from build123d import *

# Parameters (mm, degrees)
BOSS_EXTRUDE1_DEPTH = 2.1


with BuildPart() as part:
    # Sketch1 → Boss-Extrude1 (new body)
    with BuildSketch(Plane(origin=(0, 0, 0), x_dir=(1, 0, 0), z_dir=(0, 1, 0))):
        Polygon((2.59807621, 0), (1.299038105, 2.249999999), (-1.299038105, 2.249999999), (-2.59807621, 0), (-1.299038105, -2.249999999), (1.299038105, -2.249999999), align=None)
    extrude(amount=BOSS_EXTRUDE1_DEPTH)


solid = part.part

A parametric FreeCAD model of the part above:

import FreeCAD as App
import Part
import Sketcher
Q = App.Units.Quantity

doc = App.newDocument("Part")
params = doc.addObject("Spreadsheet::Sheet", "Params")
for row, (alias, value) in enumerate([
    ("pad1_length", "2.1 mm"),
], start=1):
    params.set(f"A{row}", alias)
    params.set(f"B{row}", "=" + value)
    params.setAlias(f"B{row}", alias)

body = doc.addObject("PartDesign::Body", "Body")

# Sketch on XZ plane
sketch1 = body.newObject("Sketcher::SketchObject", "Sketch")
sketch1.AttachmentSupport = (doc.getObject("XZ_Plane"), [""])
sketch1.MapMode = "FlatFace"
sketch1.addGeometry([
    Part.LineSegment(App.Vector(2.6, 0, 0), App.Vector(1.3, -2.2, 0)),  # 0
    Part.LineSegment(App.Vector(1.3, -2.2, 0), App.Vector(-1.3, -2.2, 0)),  # 1
    Part.LineSegment(App.Vector(-1.3, -2.2, 0), App.Vector(-2.6, 0, 0)),  # 2
    Part.LineSegment(App.Vector(-2.6, 0, 0), App.Vector(-1.3, 2.2, 0)),  # 3
    Part.LineSegment(App.Vector(-1.3, 2.2, 0), App.Vector(1.3, 2.2, 0)),  # 4
    Part.LineSegment(App.Vector(1.3, 2.2, 0), App.Vector(2.6, 0, 0)),  # 5
], False)
sketch1.addConstraint([
    Sketcher.Constraint("Coincident", 0, 2, 1, 1),
    Sketcher.Constraint("Coincident", 1, 2, 2, 1),
    Sketcher.Constraint("Coincident", 2, 2, 3, 1),
    Sketcher.Constraint("Coincident", 3, 2, 4, 1),
    Sketcher.Constraint("Coincident", 4, 2, 5, 1),
    Sketcher.Constraint("Coincident", 5, 2, 0, 1),
    Sketcher.Constraint("Horizontal", 1),
    Sketcher.Constraint("Horizontal", 4),
    Sketcher.Constraint("Symmetric", 0, 2, 3, 2, -1, 1),
    Sketcher.Constraint("Symmetric", 2, 2, 5, 2, -1, 1),
    Sketcher.Constraint("PointOnObject", 2, 2, -1),
    Sketcher.Constraint("Parallel", 2, 5),
    Sketcher.Constraint("Vertical", 1, 2, 3, 2),
    Sketcher.Constraint("Angle", 0, Q("-120 deg")),
    Sketcher.Constraint("DistanceY", 1, 2, 3, 2, 4.5),
    Sketcher.Constraint("DistanceX", 1, 2, 1, 1, 2.598076),
])
pad1 = body.newObject("PartDesign::Pad", "Pad")
pad1.Profile = sketch1
pad1.setExpression("Length", "Params.pad1_length")
pad1.Reversed = True

doc.recompute()
